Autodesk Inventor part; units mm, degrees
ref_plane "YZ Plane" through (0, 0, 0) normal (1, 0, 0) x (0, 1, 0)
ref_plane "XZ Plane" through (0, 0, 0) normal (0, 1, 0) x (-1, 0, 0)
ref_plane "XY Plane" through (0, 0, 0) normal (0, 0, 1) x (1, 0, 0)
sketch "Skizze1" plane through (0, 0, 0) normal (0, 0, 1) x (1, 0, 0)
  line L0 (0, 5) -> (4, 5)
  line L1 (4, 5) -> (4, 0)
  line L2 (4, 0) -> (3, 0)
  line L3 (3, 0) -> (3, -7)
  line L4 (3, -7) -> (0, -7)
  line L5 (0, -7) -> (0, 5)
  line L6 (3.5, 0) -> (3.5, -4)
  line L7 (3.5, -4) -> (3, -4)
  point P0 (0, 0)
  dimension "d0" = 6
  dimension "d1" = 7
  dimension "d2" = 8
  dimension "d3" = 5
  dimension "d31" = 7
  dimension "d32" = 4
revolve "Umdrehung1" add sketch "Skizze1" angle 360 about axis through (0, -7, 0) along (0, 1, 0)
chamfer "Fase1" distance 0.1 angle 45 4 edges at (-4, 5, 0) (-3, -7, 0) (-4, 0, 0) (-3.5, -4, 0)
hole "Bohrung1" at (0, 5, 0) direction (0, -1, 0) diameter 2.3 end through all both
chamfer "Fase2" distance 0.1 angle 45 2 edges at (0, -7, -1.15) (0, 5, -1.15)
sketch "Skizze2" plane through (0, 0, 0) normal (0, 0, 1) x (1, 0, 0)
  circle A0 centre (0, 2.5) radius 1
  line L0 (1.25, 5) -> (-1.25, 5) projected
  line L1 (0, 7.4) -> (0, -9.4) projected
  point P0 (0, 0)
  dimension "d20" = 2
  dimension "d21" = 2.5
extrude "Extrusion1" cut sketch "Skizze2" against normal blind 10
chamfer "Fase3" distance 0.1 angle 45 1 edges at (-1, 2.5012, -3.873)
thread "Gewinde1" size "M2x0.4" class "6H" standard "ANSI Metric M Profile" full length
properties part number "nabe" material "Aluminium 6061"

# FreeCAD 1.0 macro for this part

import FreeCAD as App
import Part
import Sketcher
from FreeCAD import Vector
Q = App.Units.Quantity


def edges_at(feature, points):
    """Names of the edges that pass closest to the given points."""
    edges = feature.Shape.Edges
    near = lambda p: min(range(len(edges)), key=lambda i: edges[i].distToShape(Part.Vertex(*p))[0])
    return sorted({f"Edge{near(p) + 1}" for p in points})

doc = App.newDocument("Part")
params = doc.addObject("Spreadsheet::Sheet", "Params")
for row, (alias, value) in enumerate([
    ("sketch1_width", "4 mm"),
    ("sketch1_height", "5 mm"),
    ("revolution_angle", "360 deg"),
    ("chamfer_size", "0.1 mm"),
    ("sketch2_diameter", "2.3 mm"),
    ("hole_diameter", "2.3 mm"),
    ("chamfer2_size", "0.1 mm"),
    ("sketch3_diameter", "2 mm"),
    ("pocket1_length", "10 mm"),
    ("chamfer3_size", "0.1 mm"),
], start=1):
    params.set(f"A{row}", alias)
    params.set(f"B{row}", "=" + value)
    params.setAlias(f"B{row}", alias)

body = doc.addObject("PartDesign::Body", "Body")

# Sketch on XY plane
sketch1 = doc.addObject("Sketcher::SketchObject", "Sketch")
body.addObject(sketch1)
sketch1.AttachmentSupport = (doc.XY_Plane, [""])
sketch1.MapMode = "FlatFace"
sketch1.addGeometry(Part.LineSegment(Vector(4, 5, 0), Vector(0, 5, 0)), False)
sketch1.addGeometry(Part.LineSegment(Vector(0, 5, 0), Vector(0, -7, 0)), False)
sketch1.addGeometry(Part.LineSegment(Vector(0, -7, 0), Vector(3, -7, 0)), False)
sketch1.addGeometry(Part.LineSegment(Vector(3, -7, 0), Vector(3, -4, 0)), False)
sketch1.addGeometry(Part.LineSegment(Vector(3, -4, 0), Vector(3.5, -4, 0)), False)
sketch1.addGeometry(Part.LineSegment(Vector(3.5, -4, 0), Vector(3.5, 0, 0)), False)
sketch1.addGeometry(Part.LineSegment(Vector(3.5, 0, 0), Vector(4, 0, 0)), False)
sketch1.addGeometry(Part.LineSegment(Vector(4, 0, 0), Vector(4, 5, 0)), False)
sketch1.addConstraint(Sketcher.Constraint("Coincident", 0, 2, 1, 1))
sketch1.addConstraint(Sketcher.Constraint("Coincident", 1, 2, 2, 1))
sketch1.addConstraint(Sketcher.Constraint("Coincident", 2, 2, 3, 1))
sketch1.addConstraint(Sketcher.Constraint("Coincident", 3, 2, 4, 1))
sketch1.addConstraint(Sketcher.Constraint("Coincident", 4, 2, 5, 1))
sketch1.addConstraint(Sketcher.Constraint("Coincident", 5, 2, 6, 1))
sketch1.addConstraint(Sketcher.Constraint("Coincident", 6, 2, 7, 1))
sketch1.addConstraint(Sketcher.Constraint("Coincident", 7, 2, 0, 1))
sketch1.addConstraint(Sketcher.Constraint("Horizontal", 0))
sketch1.addConstraint(Sketcher.Constraint("Vertical", 1))
sketch1.addConstraint(Sketcher.Constraint("Horizontal", 2))
sketch1.addConstraint(Sketcher.Constraint("Vertical", 3))
sketch1.addConstraint(Sketcher.Constraint("Horizontal", 4))
sketch1.addConstraint(Sketcher.Constraint("Vertical", 5))
sketch1.addConstraint(Sketcher.Constraint("Horizontal", 6))
sketch1.addConstraint(Sketcher.Constraint("Vertical", 7))
sketch1.addConstraint(Sketcher.Constraint("PointOnObject", 0, 2, -2))
sketch1.addConstraint(Sketcher.Constraint("PointOnObject", 5, 2, -1))
sketch1.addConstraint(Sketcher.Constraint("Equal", 4, 6))
sketch1.addConstraint(Sketcher.Constraint("Equal", 2, 3))
sketch1.addConstraint(Sketcher.Constraint("Equal", 0, 5))
sketch1.addConstraint(Sketcher.Constraint("DistanceX", 0, 2, 0, 1, Q("4 mm")))
sketch1.addConstraint(Sketcher.Constraint("DistanceY", 7, 1, 7, 2, Q("5 mm")))
sketch1.addConstraint(Sketcher.Constraint("DistanceY", 1, 2, -1, 1, Q("7 mm")))
sketch1.setExpression("Constraints[21]", "Params.sketch1_width")
sketch1.setExpression("Constraints[22]", "Params.sketch1_height")
revolution = doc.addObject("PartDesign::Revolution", "Revolution")
body.addObject(revolution)
revolution.Profile = sketch1
revolution.ReferenceAxis = (sketch1, ["V_Axis"])
revolution.setExpression("Angle", "Params.revolution_angle")
doc.recompute()

chamfer = doc.addObject("PartDesign::Chamfer", "Chamfer")
body.addObject(chamfer)
chamfer.Base = (revolution, edges_at(revolution, [
    (-4, 5, 0),
    (-3, -7, 0),
    (-4, 0, 0),
    (-3.5, -4, 0),
]))
chamfer.setExpression("Size", "Params.chamfer_size")

# Sketch on XZ plane
sketch2 = doc.addObject("Sketcher::SketchObject", "Sketch001")
body.addObject(sketch2)
sketch2.AttachmentSupport = (doc.XZ_Plane, [""])
sketch2.MapMode = "FlatFace"
sketch2.AttachmentOffset = App.Placement(Vector(0, 0, -5), App.Rotation())
sketch2.addGeometry(Part.Circle(Vector(0, 0, 0), Vector(0, 0, 1), 1.1), False)
sketch2.addConstraint(Sketcher.Constraint("Coincident", 0, 3, -1, 1))
sketch2.addConstraint(Sketcher.Constraint("Diameter", 0, Q("2.3 mm")))
sketch2.setExpression("Constraints[1]", "Params.sketch2_diameter")
doc.recompute()
hole = doc.addObject("PartDesign::Hole", "Hole")
body.addObject(hole)
hole.Profile = sketch2
hole.ThreadType = "None"
hole.setExpression("Diameter", "Params.hole_diameter")
hole.DepthType = "ThroughAll"
hole.Reversed = True
doc.recompute()

chamfer2 = doc.addObject("PartDesign::Chamfer", "Chamfer001")
body.addObject(chamfer2)
chamfer2.Base = (hole, edges_at(hole, [(0, -7, -1.15), (0, 5, -1.15)]))
chamfer2.setExpression("Size", "Params.chamfer2_size")

# Sketch on XY plane
sketch3 = doc.addObject("Sketcher::SketchObject", "Sketch002")
body.addObject(sketch3)
sketch3.AttachmentSupport = (doc.XY_Plane, [""])
sketch3.MapMode = "FlatFace"
sketch3.addGeometry(Part.Circle(Vector(0, 2.5, 0), Vector(0, 0, 1), 1), False)
sketch3.addConstraint(Sketcher.Constraint("PointOnObject", 0, 3, -2))
sketch3.addConstraint(Sketcher.Constraint("Diameter", 0, Q("2 mm")))
sketch3.addConstraint(Sketcher.Constraint("DistanceY", -1, 1, 0, 3, Q("2.5 mm")))
sketch3.setExpression("Constraints[1]", "Params.sketch3_diameter")
pocket1 = doc.addObject("PartDesign::Pocket", "Pocket")
body.addObject(pocket1)
pocket1.Profile = sketch3
pocket1.setExpression("Length", "Params.pocket1_length")
doc.recompute()

chamfer3 = doc.addObject("PartDesign::Chamfer", "Chamfer002")
body.addObject(chamfer3)
chamfer3.Base = (pocket1, edges_at(pocket1, [(-1, 2.501, -3.873)]))
chamfer3.setExpression("Size", "Params.chamfer3_size")

doc.recompute()
